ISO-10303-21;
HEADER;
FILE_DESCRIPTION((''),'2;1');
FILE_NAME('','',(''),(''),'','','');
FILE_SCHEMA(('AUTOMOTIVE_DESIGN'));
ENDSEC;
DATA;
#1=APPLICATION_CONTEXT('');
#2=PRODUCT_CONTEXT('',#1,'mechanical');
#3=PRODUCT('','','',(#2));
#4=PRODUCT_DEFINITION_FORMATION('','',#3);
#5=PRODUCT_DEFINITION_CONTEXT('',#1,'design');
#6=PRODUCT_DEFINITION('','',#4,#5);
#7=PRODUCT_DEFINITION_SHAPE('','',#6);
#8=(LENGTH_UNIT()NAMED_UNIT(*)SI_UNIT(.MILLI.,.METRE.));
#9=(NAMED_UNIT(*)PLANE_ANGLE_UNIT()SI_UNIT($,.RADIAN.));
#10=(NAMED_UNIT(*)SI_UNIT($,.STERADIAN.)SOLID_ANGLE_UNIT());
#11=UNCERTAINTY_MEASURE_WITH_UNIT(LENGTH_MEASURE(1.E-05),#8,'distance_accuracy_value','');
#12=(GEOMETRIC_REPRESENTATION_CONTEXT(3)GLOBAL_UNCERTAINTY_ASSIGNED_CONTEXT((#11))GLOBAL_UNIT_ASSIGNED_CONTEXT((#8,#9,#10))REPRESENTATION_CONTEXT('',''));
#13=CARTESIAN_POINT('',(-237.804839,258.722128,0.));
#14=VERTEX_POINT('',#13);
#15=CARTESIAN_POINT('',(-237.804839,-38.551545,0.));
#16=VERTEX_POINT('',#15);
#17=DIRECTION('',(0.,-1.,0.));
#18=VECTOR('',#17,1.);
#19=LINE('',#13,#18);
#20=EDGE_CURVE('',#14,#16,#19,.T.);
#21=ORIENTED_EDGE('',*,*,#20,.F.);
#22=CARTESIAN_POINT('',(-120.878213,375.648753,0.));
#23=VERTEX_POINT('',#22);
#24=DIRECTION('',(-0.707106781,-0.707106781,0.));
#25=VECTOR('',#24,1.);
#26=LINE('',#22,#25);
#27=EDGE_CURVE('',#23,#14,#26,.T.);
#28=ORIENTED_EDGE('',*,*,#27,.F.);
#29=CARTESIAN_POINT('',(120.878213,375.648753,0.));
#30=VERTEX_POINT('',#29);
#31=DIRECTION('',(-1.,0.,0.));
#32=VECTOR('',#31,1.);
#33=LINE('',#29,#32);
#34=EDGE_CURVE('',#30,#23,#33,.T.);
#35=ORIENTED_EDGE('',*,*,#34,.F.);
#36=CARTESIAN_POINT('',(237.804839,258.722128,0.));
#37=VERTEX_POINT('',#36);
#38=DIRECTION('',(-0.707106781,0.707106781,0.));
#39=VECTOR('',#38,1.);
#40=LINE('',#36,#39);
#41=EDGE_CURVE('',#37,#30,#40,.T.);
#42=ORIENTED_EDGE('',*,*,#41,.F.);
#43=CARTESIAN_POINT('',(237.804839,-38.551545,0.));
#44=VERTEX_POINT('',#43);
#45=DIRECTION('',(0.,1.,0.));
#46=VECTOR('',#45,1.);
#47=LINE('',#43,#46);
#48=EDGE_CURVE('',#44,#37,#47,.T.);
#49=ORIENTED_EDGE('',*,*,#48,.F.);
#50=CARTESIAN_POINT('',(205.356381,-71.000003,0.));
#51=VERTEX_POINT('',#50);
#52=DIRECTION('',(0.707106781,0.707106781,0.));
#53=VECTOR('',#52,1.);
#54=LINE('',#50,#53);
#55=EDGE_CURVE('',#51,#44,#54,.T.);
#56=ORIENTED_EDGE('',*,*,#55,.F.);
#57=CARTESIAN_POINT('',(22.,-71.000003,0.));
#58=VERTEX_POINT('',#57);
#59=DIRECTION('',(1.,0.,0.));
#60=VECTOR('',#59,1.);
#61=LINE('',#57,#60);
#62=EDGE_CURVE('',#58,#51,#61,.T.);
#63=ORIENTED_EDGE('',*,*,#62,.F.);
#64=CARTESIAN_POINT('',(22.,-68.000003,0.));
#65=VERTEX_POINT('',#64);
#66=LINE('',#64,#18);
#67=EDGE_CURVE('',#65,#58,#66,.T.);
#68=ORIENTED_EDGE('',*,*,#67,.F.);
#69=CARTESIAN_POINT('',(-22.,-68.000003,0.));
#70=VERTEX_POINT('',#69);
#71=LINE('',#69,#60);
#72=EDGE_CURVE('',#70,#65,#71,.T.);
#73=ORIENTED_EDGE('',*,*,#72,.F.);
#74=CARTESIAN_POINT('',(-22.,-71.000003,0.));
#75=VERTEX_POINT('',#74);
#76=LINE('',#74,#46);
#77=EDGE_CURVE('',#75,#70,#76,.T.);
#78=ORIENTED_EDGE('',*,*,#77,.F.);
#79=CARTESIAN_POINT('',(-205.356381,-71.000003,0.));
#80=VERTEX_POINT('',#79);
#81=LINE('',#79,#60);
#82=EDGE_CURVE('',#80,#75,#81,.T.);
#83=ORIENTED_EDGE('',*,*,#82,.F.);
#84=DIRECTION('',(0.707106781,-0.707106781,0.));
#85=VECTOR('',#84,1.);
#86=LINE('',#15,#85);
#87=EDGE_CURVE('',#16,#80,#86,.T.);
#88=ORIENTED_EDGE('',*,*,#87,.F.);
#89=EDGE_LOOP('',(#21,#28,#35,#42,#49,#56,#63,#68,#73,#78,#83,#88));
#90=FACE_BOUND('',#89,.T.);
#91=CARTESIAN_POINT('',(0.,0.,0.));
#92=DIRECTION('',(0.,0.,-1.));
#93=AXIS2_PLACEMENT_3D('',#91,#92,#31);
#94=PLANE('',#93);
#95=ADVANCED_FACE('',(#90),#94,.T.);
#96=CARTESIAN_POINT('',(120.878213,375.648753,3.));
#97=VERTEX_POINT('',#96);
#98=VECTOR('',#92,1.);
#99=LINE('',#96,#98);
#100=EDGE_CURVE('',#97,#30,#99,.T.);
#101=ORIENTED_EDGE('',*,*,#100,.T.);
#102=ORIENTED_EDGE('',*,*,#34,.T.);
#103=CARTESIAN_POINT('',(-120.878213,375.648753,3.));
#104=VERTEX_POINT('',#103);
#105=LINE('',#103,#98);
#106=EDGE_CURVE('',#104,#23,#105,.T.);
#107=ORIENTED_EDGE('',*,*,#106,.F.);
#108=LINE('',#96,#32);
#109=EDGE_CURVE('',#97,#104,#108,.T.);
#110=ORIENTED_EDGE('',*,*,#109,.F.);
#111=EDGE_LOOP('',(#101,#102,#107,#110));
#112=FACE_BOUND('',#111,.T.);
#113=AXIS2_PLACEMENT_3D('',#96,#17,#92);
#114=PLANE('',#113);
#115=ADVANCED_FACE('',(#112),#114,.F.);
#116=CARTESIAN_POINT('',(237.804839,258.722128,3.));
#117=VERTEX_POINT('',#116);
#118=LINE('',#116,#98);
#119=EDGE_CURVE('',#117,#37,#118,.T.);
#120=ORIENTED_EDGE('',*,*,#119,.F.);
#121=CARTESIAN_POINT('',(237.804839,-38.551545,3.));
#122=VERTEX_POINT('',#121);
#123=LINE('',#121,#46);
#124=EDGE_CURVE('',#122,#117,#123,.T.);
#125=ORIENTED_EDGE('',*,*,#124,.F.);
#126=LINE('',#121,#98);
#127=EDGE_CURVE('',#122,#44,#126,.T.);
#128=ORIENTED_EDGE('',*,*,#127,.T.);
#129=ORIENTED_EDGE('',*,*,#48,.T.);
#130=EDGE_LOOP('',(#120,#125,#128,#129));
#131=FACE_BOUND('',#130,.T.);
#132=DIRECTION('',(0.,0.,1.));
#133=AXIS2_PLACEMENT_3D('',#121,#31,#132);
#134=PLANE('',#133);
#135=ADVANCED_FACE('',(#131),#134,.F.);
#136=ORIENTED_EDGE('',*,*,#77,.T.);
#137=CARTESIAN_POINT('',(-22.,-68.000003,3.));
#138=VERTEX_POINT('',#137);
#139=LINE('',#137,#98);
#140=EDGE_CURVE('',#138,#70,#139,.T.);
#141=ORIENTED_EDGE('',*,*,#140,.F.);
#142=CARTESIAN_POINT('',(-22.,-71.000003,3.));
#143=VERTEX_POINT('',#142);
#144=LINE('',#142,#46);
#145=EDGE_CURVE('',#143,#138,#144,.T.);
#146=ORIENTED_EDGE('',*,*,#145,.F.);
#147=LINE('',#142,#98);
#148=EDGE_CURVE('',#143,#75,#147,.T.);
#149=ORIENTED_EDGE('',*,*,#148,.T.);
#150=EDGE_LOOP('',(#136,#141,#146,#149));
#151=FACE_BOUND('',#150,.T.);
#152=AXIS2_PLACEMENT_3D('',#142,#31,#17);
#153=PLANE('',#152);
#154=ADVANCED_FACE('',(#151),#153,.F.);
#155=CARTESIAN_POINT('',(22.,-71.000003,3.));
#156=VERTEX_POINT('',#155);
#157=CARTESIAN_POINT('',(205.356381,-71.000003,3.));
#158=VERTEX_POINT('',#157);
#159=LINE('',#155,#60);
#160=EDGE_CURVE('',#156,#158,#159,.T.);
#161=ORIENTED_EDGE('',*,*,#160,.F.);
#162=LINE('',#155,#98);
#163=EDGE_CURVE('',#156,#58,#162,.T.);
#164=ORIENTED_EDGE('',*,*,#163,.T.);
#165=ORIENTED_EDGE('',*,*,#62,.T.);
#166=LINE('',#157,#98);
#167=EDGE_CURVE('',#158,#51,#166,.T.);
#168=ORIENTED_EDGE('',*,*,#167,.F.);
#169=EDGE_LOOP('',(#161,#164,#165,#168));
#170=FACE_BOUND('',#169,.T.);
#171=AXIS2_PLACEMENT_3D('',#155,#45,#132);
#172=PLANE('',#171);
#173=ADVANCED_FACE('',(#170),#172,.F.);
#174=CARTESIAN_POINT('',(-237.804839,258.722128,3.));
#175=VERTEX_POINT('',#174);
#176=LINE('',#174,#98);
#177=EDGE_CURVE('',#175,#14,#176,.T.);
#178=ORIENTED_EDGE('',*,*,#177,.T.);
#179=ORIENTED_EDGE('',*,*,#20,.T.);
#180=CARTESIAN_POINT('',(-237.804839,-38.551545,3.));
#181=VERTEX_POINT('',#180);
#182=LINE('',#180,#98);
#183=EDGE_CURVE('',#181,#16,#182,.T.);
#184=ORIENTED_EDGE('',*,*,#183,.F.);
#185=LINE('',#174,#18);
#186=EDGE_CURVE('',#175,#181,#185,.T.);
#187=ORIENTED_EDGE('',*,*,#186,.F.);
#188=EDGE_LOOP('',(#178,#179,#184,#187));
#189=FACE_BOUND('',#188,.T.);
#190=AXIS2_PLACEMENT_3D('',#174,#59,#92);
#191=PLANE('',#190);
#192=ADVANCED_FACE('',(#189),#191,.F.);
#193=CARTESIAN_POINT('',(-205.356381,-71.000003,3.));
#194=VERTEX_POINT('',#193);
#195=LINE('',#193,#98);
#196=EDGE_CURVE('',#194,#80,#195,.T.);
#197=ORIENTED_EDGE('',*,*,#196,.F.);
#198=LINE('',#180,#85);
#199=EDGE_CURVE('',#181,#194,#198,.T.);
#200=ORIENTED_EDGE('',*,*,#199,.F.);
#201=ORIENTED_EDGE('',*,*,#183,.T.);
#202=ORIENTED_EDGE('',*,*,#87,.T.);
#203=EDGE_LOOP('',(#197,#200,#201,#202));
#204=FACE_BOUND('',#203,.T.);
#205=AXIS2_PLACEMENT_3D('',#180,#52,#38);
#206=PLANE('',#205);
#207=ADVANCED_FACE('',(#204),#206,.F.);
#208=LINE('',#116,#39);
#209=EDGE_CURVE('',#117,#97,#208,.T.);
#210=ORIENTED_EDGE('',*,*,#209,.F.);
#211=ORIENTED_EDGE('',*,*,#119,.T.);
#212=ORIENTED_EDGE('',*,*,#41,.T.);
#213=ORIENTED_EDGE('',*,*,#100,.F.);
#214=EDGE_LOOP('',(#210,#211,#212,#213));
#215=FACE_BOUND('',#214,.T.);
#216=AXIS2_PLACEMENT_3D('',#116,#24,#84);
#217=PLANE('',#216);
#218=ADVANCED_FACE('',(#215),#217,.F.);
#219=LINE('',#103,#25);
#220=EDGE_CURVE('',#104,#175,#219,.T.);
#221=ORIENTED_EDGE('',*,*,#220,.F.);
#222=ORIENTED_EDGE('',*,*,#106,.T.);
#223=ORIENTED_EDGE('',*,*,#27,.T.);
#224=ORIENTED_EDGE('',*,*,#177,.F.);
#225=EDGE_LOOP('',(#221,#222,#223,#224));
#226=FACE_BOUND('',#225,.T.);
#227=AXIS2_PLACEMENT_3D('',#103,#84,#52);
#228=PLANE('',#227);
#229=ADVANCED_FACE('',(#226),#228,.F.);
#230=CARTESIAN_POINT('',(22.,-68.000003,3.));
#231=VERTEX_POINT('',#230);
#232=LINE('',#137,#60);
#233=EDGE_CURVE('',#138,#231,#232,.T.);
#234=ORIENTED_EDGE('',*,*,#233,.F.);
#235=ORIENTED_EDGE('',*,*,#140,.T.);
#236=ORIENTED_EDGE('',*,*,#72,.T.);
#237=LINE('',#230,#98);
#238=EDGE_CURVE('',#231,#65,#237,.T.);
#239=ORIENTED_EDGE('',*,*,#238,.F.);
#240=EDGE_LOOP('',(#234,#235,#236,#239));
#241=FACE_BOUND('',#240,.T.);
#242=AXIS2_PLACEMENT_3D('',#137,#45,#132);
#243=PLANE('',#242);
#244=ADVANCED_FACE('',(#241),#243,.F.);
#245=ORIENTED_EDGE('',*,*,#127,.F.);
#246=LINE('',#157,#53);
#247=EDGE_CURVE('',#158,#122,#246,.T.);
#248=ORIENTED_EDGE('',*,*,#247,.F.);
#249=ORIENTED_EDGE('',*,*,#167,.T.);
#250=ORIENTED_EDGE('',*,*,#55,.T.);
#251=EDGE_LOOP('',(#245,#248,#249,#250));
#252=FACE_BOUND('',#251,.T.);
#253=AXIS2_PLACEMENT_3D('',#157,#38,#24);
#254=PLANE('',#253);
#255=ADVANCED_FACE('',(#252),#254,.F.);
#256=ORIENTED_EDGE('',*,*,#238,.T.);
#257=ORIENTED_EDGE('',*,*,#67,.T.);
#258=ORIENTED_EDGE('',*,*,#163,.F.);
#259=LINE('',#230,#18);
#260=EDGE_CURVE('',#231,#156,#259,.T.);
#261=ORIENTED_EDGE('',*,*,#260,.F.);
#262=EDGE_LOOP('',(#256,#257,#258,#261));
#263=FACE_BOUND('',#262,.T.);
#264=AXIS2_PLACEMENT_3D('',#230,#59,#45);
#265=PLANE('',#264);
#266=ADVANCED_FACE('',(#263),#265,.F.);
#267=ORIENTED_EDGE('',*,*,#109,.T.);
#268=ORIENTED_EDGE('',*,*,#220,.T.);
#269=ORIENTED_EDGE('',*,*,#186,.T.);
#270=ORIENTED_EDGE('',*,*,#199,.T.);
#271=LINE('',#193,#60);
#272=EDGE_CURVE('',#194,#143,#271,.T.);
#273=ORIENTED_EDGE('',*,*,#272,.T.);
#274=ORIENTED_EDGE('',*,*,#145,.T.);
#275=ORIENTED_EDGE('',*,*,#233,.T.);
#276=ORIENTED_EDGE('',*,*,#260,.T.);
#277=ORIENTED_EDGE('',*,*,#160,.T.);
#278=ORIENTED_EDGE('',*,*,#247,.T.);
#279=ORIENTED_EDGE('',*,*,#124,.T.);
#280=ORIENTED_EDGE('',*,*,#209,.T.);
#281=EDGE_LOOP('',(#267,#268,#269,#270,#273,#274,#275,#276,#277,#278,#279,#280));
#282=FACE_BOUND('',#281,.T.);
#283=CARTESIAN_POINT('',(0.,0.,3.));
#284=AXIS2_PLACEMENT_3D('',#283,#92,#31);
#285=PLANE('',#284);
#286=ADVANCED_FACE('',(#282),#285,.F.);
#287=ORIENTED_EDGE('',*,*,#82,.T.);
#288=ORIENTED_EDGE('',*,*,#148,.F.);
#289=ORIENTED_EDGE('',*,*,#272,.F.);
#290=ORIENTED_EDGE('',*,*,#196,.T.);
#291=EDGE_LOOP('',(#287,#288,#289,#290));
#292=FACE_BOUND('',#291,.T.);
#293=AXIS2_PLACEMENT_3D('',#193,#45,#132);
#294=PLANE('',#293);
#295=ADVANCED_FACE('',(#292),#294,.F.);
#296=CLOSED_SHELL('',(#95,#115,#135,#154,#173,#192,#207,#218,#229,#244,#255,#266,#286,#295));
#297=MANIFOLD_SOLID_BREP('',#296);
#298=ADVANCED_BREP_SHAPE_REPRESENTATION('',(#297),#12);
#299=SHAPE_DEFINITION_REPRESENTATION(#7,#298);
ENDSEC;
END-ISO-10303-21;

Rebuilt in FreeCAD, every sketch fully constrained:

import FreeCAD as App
import Part
import Sketcher
Q = App.Units.Quantity

doc = App.newDocument("Part")
body = doc.addObject("PartDesign::Body", "Body")

# Sketch on XY plane
sketch1 = body.newObject("Sketcher::SketchObject", "Sketch")
sketch1.AttachmentSupport = (doc.getObject("XY_Plane"), [""])
sketch1.MapMode = "FlatFace"
sketch1.addGeometry([
    Part.LineSegment(App.Vector(-22, -68, 0), App.Vector(22, -68, 0)),  # 0
    Part.LineSegment(App.Vector(22, -68, 0), App.Vector(22, -71, 0)),  # 1
    Part.LineSegment(App.Vector(22, -71, 0), App.Vector(205.4, -71, 0)),  # 2
    Part.LineSegment(App.Vector(205.4, -71, 0), App.Vector(237.8, -38.6, 0)),  # 3
    Part.LineSegment(App.Vector(237.8, -38.6, 0), App.Vector(237.8, 258.7, 0)),  # 4
    Part.LineSegment(App.Vector(237.8, 258.7, 0), App.Vector(120.9, 375.6, 0)),  # 5
    Part.LineSegment(App.Vector(120.9, 375.6, 0), App.Vector(-120.9, 375.6, 0)),  # 6
    Part.LineSegment(App.Vector(-120.9, 375.6, 0), App.Vector(-237.8, 258.7, 0)),  # 7
    Part.LineSegment(App.Vector(-237.8, 258.7, 0), App.Vector(-237.8, -38.6, 0)),  # 8
    Part.LineSegment(App.Vector(-237.8, -38.6, 0), App.Vector(-205.4, -71, 0)),  # 9
    Part.LineSegment(App.Vector(-205.4, -71, 0), App.Vector(-22, -71, 0)),  # 10
    Part.LineSegment(App.Vector(-22, -71, 0), App.Vector(-22, -68, 0)),  # 11
], False)
sketch1.addConstraint([
    Sketcher.Constraint("Coincident", 0, 2, 1, 1),
    Sketcher.Constraint("Coincident", 1, 2, 2, 1),
    Sketcher.Constraint("Coincident", 2, 2, 3, 1),
    Sketcher.Constraint("Coincident", 3, 2, 4, 1),
    Sketcher.Constraint("Coincident", 4, 2, 5, 1),
    Sketcher.Constraint("Coincident", 5, 2, 6, 1),
    Sketcher.Constraint("Coincident", 6, 2, 7, 1),
    Sketcher.Constraint("Coincident", 7, 2, 8, 1),
    Sketcher.Constraint("Coincident", 8, 2, 9, 1),
    Sketcher.Constraint("Coincident", 9, 2, 10, 1),
    Sketcher.Constraint("Coincident", 10, 2, 11, 1),
    Sketcher.Constraint("Coincident", 11, 2, 0, 1),
    Sketcher.Constraint("Horizontal", 0),
    Sketcher.Constraint("Vertical", 1),
    Sketcher.Constraint("Horizontal", 2),
    Sketcher.Constraint("Vertical", 4),
    Sketcher.Constraint("Horizontal", 6),
    Sketcher.Constraint("Vertical", 8),
    Sketcher.Constraint("Horizontal", 10),
    Sketcher.Constraint("Vertical", 11),
    Sketcher.Constraint("Symmetric", 4, 2, 7, 2, -2),
    Sketcher.Constraint("Symmetric", 2, 2, 9, 2, -2),
    Sketcher.Constraint("Perpendicular", 3, 5),
    Sketcher.Constraint("Perpendicular", 5, 7),
    Sketcher.Constraint("Perpendicular", 7, 9),
    Sketcher.Constraint("Horizontal", 3, 2, 8, 2),
    Sketcher.Constraint("Equal", 2, 10),
    Sketcher.Constraint("DistanceX", 0, 1, 0, 2, Q("44 mm")),
    Sketcher.Constraint("DistanceY", 1, 2, 1, 1, Q("3 mm")),
    Sketcher.Constraint("DistanceX", 2, 1, 2, 2, Q("183.356381 mm")),
    Sketcher.Constraint("DistanceY", 3, 2, 5, 2, Q("414.200298 mm")),
    Sketcher.Constraint("Distance", 3, Q("45.889049 mm")),
    Sketcher.Constraint("Distance", 5, Q("165.35922 mm")),
    Sketcher.Constraint("DistanceY", 0, 2, -1, 1, Q("68.000003 mm")),
])
pad1 = body.newObject("PartDesign::Pad", "Pad")
pad1.Profile = sketch1
pad1.Length = 3

doc.recompute()
